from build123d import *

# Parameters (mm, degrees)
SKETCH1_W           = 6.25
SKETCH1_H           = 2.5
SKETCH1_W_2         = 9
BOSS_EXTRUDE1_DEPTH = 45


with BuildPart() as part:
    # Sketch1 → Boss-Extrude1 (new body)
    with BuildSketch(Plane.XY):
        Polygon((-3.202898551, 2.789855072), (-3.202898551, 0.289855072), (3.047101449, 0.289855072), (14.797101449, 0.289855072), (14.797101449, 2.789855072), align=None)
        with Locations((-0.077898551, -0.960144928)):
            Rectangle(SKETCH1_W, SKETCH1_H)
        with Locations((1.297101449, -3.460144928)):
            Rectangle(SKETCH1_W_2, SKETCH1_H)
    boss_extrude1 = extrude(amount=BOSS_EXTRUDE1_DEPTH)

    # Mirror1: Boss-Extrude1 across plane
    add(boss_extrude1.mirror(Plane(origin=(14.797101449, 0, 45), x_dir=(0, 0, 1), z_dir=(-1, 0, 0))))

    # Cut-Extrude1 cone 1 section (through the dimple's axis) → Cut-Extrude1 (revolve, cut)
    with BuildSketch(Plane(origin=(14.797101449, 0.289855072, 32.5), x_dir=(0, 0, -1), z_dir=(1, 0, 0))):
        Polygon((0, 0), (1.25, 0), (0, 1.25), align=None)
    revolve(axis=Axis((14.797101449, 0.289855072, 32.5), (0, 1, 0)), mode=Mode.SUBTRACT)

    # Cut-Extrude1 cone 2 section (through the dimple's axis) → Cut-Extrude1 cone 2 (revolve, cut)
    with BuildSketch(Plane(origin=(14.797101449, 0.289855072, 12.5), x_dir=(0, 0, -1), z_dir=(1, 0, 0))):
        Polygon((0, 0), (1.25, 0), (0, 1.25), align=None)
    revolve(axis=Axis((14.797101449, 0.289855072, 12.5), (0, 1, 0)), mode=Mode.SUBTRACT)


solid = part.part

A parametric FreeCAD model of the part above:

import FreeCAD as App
import Part
import Sketcher

V = App.Vector


def add_polygon(sketch, points):
    """Adds a closed chain of lines whose ends are joined by coincident constraints."""
    first, n = sketch.GeometryCount, len(points)
    for a, b in zip(points, points[1:] + points[:1]):
        sketch.addGeometry(Part.LineSegment(App.Vector(*a, 0), App.Vector(*b, 0)), False)
    for i in range(n):
        sketch.addConstraint(Sketcher.Constraint("Coincident", first + i, 2, first + (i + 1) % n, 1))

doc = App.newDocument("Part")
params = doc.addObject("Spreadsheet::Sheet", "Params")
for row, (alias, value) in enumerate([
    ("sketch1_width", "9 mm"),
    ("sketch1_width2", "18 mm"),
    ("sketch1_height", "7.5 mm"),
    ("sketch1_width3", "2.75 mm"),
    ("pad1_length", "45 mm"),
    ("sketch2_width", "1.25 mm"),
    ("groove_angle", "360 deg"),
    ("sketch3_width", "1.25 mm"),
    ("groove2_angle", "360 deg"),
], start=1):
    params.set(f"A{row}", alias)
    params.set(f"B{row}", "=" + value)
    params.setAlias(f"B{row}", alias)

body = doc.addObject("PartDesign::Body", "Body")

# Sketch on XY plane
sketch1 = body.newObject("Sketcher::SketchObject", "Sketch")
sketch1.AttachmentSupport = (doc.getObject("XY_Plane"), [""])
sketch1.MapMode = "FlatFace"
add_polygon(sketch1, [(-3.202899, 2.789855), (-3.202899, -4.710145), (5.797101, -4.710145), (5.797101, -2.210145), (3.047101, -2.210145), (3.047101, 0.289855), (14.797101, 0.289855), (14.797101, 2.789855)])  # lines 0-7
sketch1.addConstraint([
    Sketcher.Constraint("Vertical", 0),
    Sketcher.Constraint("Horizontal", 1),
    Sketcher.Constraint("Vertical", 2),
    Sketcher.Constraint("Horizontal", 3),
    Sketcher.Constraint("Vertical", 4),
    Sketcher.Constraint("Horizontal", 5),
    Sketcher.Constraint("Vertical", 6),
    Sketcher.Constraint("Horizontal", 7),
    Sketcher.Constraint("Equal", 2, 4),
    Sketcher.Constraint("Equal", 4, 6),
    Sketcher.Constraint("DistanceX", 1, 1, 1, 2, 9.0),
    Sketcher.Constraint("DistanceX", 7, 2, 7, 1, 18.0),
    Sketcher.Constraint("DistanceY", 0, 2, 0, 1, 7.5),
    Sketcher.Constraint("DistanceX", 3, 2, 3, 1, 2.75),
    Sketcher.Constraint("DistanceX", 0, 2, -1, 1, 3.202899),
    Sketcher.Constraint("DistanceY", 0, 2, -1, 1, 4.710145),
])
sketch1.setExpression("Constraints[18]", "Params.sketch1_width")
sketch1.setExpression("Constraints[19]", "Params.sketch1_width2")
sketch1.setExpression("Constraints[20]", "Params.sketch1_height")
sketch1.setExpression("Constraints[21]", "Params.sketch1_width3")
pad1 = body.newObject("PartDesign::Pad", "Pad")
pad1.Profile = sketch1
pad1.setExpression("Length", "Params.pad1_length")
doc.recompute()

datumplane = body.newObject("PartDesign::Plane", "DatumPlane")
datumplane.AttachmentSupport = (doc.getObject("YZ_Plane"), [""])
datumplane.MapMode = "FlatFace"
datumplane.AttachmentOffset = App.Placement(V(0, 0, 14.797101), App.Rotation())
mirrored = body.newObject("PartDesign::Mirrored", "Mirrored")
mirrored.Originals = [pad1]
mirrored.MirrorPlane = (datumplane, [""])
body.Tip = mirrored

# Sketch on YZ plane
sketch2 = body.newObject("Sketcher::SketchObject", "Sketch001")
sketch2.AttachmentSupport = (doc.getObject("YZ_Plane"), [""])
sketch2.MapMode = "FlatFace"
sketch2.AttachmentOffset = App.Placement(V(0, 0, 14.797101), App.Rotation())
add_polygon(sketch2, [(0.289855, 32.5), (0.289855, 31.25), (1.539855, 32.5)])  # lines 0-2
sketch2.addGeometry(Part.LineSegment(V(0.289855, 32.5, 0), V(1.539855, 32.5, 0)), True)  # axis
sketch2.addConstraint([
    Sketcher.Constraint("Vertical", 0),
    Sketcher.Constraint("Horizontal", 2),
    Sketcher.Constraint("Horizontal", 3),
    Sketcher.Constraint("Coincident", 3, 1, 2, 2),
    Sketcher.Constraint("Equal", 2, 3),
    Sketcher.Constraint("Equal", 3, 0),
    Sketcher.Constraint("DistanceX", 2, 2, 2, 1, 1.25),
    Sketcher.Constraint("DistanceY", -1, 1, 1, 2, 32.5),
    Sketcher.Constraint("DistanceX", -1, 1, 0, 2, 0.289855),
])
sketch2.setExpression("Constraints[9]", "Params.sketch2_width")
groove = body.newObject("PartDesign::Groove", "Groove")
groove.Profile = sketch2
groove.ReferenceAxis = (sketch2, ["Axis0"])
groove.setExpression("Angle", "Params.groove_angle")

# Sketch on YZ plane
sketch3 = body.newObject("Sketcher::SketchObject", "Sketch002")
sketch3.AttachmentSupport = (doc.getObject("YZ_Plane"), [""])
sketch3.MapMode = "FlatFace"
sketch3.AttachmentOffset = App.Placement(V(0, 0, 14.797101), App.Rotation())
add_polygon(sketch3, [(0.289855, 12.5), (0.289855, 11.25), (1.539855, 12.5)])  # lines 0-2
sketch3.addGeometry(Part.LineSegment(V(0.289855, 12.5, 0), V(1.539855, 12.5, 0)), True)  # axis
sketch3.addConstraint([
    Sketcher.Constraint("Vertical", 0),
    Sketcher.Constraint("Horizontal", 2),
    Sketcher.Constraint("Horizontal", 3),
    Sketcher.Constraint("Coincident", 3, 1, 2, 2),
    Sketcher.Constraint("Equal", 2, 3),
    Sketcher.Constraint("Equal", 3, 0),
    Sketcher.Constraint("DistanceX", 2, 2, 2, 1, 1.25),
    Sketcher.Constraint("DistanceY", -1, 1, 1, 2, 12.5),
    Sketcher.Constraint("DistanceX", -1, 1, 0, 2, 0.289855),
])
sketch3.setExpression("Constraints[9]", "Params.sketch3_width")
groove2 = body.newObject("PartDesign::Groove", "Groove001")
groove2.Profile = sketch3
groove2.ReferenceAxis = (sketch3, ["Axis0"])
groove2.setExpression("Angle", "Params.groove2_angle")

doc.recompute()
